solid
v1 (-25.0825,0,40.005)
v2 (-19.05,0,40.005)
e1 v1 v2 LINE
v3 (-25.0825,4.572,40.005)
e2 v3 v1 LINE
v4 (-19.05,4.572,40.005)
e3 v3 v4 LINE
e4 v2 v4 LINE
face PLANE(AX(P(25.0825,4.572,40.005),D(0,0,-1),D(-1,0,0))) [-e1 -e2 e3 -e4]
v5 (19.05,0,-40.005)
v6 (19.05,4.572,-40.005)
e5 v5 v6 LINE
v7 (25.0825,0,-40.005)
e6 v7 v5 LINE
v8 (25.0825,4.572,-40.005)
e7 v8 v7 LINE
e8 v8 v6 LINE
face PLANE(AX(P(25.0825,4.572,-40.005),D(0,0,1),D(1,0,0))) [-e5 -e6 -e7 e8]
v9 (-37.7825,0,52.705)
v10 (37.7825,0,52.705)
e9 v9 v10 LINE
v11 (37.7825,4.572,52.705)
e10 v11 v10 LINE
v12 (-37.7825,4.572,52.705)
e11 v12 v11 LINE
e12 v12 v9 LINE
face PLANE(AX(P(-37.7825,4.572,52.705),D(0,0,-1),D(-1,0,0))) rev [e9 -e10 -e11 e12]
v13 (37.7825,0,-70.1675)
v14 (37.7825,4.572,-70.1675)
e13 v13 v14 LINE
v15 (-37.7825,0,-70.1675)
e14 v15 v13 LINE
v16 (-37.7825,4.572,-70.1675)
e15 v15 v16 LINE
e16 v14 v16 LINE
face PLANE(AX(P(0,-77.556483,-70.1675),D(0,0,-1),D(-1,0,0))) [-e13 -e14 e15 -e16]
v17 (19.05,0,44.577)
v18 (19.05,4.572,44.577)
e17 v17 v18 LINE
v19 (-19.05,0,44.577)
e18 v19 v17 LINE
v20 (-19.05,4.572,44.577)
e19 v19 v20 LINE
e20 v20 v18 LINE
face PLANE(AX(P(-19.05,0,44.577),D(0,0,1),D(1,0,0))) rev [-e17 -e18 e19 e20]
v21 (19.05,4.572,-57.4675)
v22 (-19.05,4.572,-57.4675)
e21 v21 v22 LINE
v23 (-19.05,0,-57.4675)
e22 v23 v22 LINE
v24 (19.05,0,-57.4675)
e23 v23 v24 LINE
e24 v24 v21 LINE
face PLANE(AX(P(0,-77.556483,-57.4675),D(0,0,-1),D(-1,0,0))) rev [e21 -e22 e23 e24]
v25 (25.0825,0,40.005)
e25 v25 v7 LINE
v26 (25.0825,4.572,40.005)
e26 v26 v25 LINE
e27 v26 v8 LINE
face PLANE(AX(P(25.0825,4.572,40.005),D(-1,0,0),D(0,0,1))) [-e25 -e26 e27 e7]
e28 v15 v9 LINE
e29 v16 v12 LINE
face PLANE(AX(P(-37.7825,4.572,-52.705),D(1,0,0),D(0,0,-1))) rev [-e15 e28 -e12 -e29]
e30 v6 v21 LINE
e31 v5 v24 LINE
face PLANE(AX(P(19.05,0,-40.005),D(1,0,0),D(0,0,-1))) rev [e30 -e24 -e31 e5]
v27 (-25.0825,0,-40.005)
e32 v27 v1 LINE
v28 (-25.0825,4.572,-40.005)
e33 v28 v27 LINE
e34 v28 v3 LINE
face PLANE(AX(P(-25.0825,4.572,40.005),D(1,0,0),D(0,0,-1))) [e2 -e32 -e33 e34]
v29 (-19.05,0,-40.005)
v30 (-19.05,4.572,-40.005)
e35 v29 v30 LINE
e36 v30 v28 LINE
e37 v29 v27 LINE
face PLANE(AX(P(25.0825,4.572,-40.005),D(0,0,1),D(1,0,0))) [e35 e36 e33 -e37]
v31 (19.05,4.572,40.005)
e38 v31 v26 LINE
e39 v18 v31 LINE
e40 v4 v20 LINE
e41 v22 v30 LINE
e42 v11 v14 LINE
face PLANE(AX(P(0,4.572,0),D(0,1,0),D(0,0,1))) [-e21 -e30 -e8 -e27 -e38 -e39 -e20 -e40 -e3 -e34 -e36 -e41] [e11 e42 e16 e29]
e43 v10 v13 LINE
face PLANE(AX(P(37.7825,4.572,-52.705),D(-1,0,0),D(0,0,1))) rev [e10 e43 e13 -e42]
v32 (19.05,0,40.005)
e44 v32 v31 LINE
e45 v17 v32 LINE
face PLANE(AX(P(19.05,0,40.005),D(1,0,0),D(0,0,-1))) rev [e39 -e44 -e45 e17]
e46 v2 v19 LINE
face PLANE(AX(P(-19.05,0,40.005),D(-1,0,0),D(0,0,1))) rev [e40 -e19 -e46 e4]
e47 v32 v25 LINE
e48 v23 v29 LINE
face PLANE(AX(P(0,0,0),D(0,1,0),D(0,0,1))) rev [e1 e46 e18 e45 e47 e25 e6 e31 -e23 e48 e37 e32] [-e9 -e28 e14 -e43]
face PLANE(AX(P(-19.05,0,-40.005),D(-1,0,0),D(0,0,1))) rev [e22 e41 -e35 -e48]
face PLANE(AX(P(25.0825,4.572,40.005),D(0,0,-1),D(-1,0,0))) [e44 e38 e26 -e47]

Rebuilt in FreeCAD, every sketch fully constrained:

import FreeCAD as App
import Part
import Sketcher
Q = App.Units.Quantity


def add_polygon(sketch, points):
    """Adds a closed chain of lines whose ends are joined by coincident constraints."""
    first, n = sketch.GeometryCount, len(points)
    for a, b in zip(points, points[1:] + points[:1]):
        sketch.addGeometry(Part.LineSegment(App.Vector(*a, 0), App.Vector(*b, 0)), False)
    for i in range(n):
        sketch.addConstraint(Sketcher.Constraint("Coincident", first + i, 2, first + (i + 1) % n, 1))

doc = App.newDocument("Part")
body = doc.addObject("PartDesign::Body", "Body")

sketch1 = body.newObject("Sketcher::SketchObject", "Sketch")
sketch1.AttachmentSupport = (doc.getObject("XZ_Plane"), [""])
sketch1.MapMode = "FlatFace"
add_polygon(sketch1, [(-37.7825, -52.705), (-37.7825, 52.705), (37.7825, 52.705), (37.7825, -52.705)])
add_polygon(sketch1, [(25.0825, 40.005), (-25.0825, 40.005), (-25.0825, -40.005), (25.0825, -40.005)])
sketch1.addConstraint(Sketcher.Constraint("Vertical", 0))
sketch1.addConstraint(Sketcher.Constraint("Horizontal", 1))
sketch1.addConstraint(Sketcher.Constraint("Vertical", 2))
sketch1.addConstraint(Sketcher.Constraint("Horizontal", 3))
sketch1.addConstraint(Sketcher.Constraint("Horizontal", 4))
sketch1.addConstraint(Sketcher.Constraint("Vertical", 5))
sketch1.addConstraint(Sketcher.Constraint("Horizontal", 6))
sketch1.addConstraint(Sketcher.Constraint("Vertical", 7))
sketch1.addConstraint(Sketcher.Constraint("Symmetric", 0, 2, 2, 2, -1, 1))
sketch1.addConstraint(Sketcher.Constraint("Symmetric", 4, 2, 6, 2, -1, 1))
sketch1.addConstraint(Sketcher.Constraint("DistanceY", 0, 1, 0, 2, Q("4.15 in")))
sketch1.addConstraint(Sketcher.Constraint("DistanceY", 5, 2, 5, 1, Q("3.15 in")))
sketch1.addConstraint(Sketcher.Constraint("DistanceX", 0, 2, 4, 2, Q("0.5 in")))
sketch1.addConstraint(Sketcher.Constraint("DistanceX", 1, 1, 1, 2, Q("2.975 in")))
pad1 = body.newObject("PartDesign::Pad", "Pad")
pad1.Profile = sketch1
pad1.Length = Q("0.18 in")
pad1.Reversed = True

sketch2 = body.newObject("Sketcher::SketchObject", "Sketch001")
sketch2.AttachmentSupport = (doc.getObject("XZ_Plane"), [""])
sketch2.MapMode = "FlatFace"
sketch2.AttachmentOffset = App.Placement(App.Vector(0, 0, -0.18 * 25.4), App.Rotation())
add_polygon(sketch2, [(-19.05, 40.005), (-19.05, 44.577), (19.05, 44.577), (19.05, 40.005)])
add_polygon(sketch2, [(-19.05, -48.133), (-19.05, -40.005), (19.05, -40.005), (19.05, -48.133)])
sketch2.addConstraint(Sketcher.Constraint("Vertical", 0))
sketch2.addConstraint(Sketcher.Constraint("Horizontal", 1))
sketch2.addConstraint(Sketcher.Constraint("Vertical", 2))
sketch2.addConstraint(Sketcher.Constraint("Horizontal", 3))
sketch2.addConstraint(Sketcher.Constraint("Vertical", 4))
sketch2.addConstraint(Sketcher.Constraint("Horizontal", 5))
sketch2.addConstraint(Sketcher.Constraint("Vertical", 6))
sketch2.addConstraint(Sketcher.Constraint("Horizontal", 7))
sketch2.addConstraint(Sketcher.Constraint("Symmetric", 2, 2, 4, 2, -1, 1))
sketch2.addConstraint(Sketcher.Constraint("Vertical", 3, 2, 4, 2))
sketch2.addConstraint(Sketcher.Constraint("Vertical", 2, 2, 5, 2))
sketch2.addConstraint(Sketcher.Constraint("DistanceX", 1, 1, 1, 2, Q("1.5 in")))
sketch2.addConstraint(Sketcher.Constraint("DistanceY", 0, 1, 0, 2, Q("0.18 in")))
sketch2.addConstraint(Sketcher.Constraint("DistanceY", 4, 1, 4, 2, Q("0.32 in")))
sketch2.addConstraint(Sketcher.Constraint("DistanceY", 4, 2, 3, 2, Q("3.15 in")))
pocket1 = body.newObject("PartDesign::Pocket", "Pocket")
pocket1.Profile = sketch2
pocket1.Type = "ThroughAll"
pocket1.Reversed = True

sketch3 = body.newObject("Sketcher::SketchObject", "Sketch002")
sketch3.AttachmentSupport = (doc.getObject("XZ_Plane"), [""])
sketch3.MapMode = "FlatFace"
sketch3.AttachmentOffset = App.Placement(App.Vector(0, 0, -0.18 * 25.4), App.Rotation())
add_polygon(sketch3, [(-19.05, -52.705), (-19.05, -48.133), (19.05, -48.133), (19.05, -52.705)])
sketch3.addConstraint(Sketcher.Constraint("Vertical", 0))
sketch3.addConstraint(Sketcher.Constraint("Horizontal", 1))
sketch3.addConstraint(Sketcher.Constraint("Vertical", 2))
sketch3.addConstraint(Sketcher.Constraint("Horizontal", 3))
sketch3.addConstraint(Sketcher.Constraint("DistanceX", 1, 1, 1, 2, Q("1.5 in")))
sketch3.addConstraint(Sketcher.Constraint("DistanceY", 0, 1, 0, 2, Q("0.18 in")))
sketch3.addConstraint(Sketcher.Constraint("DistanceX", 0, 2, -1, 1, Q("0.75 in")))
sketch3.addConstraint(Sketcher.Constraint("DistanceY", 0, 2, -1, 1, Q("1.895 in")))
pocket2 = body.newObject("PartDesign::Pocket", "Pocket001")
pocket2.Profile = sketch3
pocket2.Type = "ThroughAll"
pocket2.Reversed = True

sketch4 = body.newObject("Sketcher::SketchObject", "Sketch003")
sketch4.AttachmentSupport = (doc.getObject("XZ_Plane"), [""])
sketch4.MapMode = "FlatFace"
sketch4.AttachmentOffset = App.Placement(App.Vector(0, 0, -0.18 * 25.4), App.Rotation())
add_polygon(sketch4, [(-19.05, -57.4675), (19.05, -57.4675), (19.05, -52.705), (37.7825, -52.705), (37.7825, -70.1675), (-37.7825, -70.1675), (-37.7825, -52.705), (-19.05, -52.705)])
sketch4.addConstraint(Sketcher.Constraint("Horizontal", 0))
sketch4.addConstraint(Sketcher.Constraint("Vertical", 1))
sketch4.addConstraint(Sketcher.Constraint("Horizontal", 2))
sketch4.addConstraint(Sketcher.Constraint("Vertical", 3))
sketch4.addConstraint(Sketcher.Constraint("Horizontal", 4))
sketch4.addConstraint(Sketcher.Constraint("Vertical", 5))
sketch4.addConstraint(Sketcher.Constraint("Horizontal", 6))
sketch4.addConstraint(Sketcher.Constraint("Vertical", 7))
sketch4.addConstraint(Sketcher.Constraint("Symmetric", 2, 2, 5, 2, -2))
sketch4.addConstraint(Sketcher.Constraint("Equal", 2, 6))
sketch4.addConstraint(Sketcher.Constraint("DistanceX", 0, 1, 0, 2, Q("1.5 in")))
sketch4.addConstraint(Sketcher.Constraint("DistanceY", 3, 2, 0, 2, Q("0.5 in")))
sketch4.addConstraint(Sketcher.Constraint("DistanceX", 4, 2, 4, 1, Q("2.975 in")))
sketch4.addConstraint(Sketcher.Constraint("DistanceY", 1, 1, 1, 2, Q("0.1875 in")))
sketch4.addConstraint(Sketcher.Constraint("DistanceY", 1, 2, -1, 1, Q("2.075 in")))
pad2 = body.newObject("PartDesign::Pad", "Pad001")
pad2.Profile = sketch4
pad2.Length = Q("0.18 in")

doc.recompute()
